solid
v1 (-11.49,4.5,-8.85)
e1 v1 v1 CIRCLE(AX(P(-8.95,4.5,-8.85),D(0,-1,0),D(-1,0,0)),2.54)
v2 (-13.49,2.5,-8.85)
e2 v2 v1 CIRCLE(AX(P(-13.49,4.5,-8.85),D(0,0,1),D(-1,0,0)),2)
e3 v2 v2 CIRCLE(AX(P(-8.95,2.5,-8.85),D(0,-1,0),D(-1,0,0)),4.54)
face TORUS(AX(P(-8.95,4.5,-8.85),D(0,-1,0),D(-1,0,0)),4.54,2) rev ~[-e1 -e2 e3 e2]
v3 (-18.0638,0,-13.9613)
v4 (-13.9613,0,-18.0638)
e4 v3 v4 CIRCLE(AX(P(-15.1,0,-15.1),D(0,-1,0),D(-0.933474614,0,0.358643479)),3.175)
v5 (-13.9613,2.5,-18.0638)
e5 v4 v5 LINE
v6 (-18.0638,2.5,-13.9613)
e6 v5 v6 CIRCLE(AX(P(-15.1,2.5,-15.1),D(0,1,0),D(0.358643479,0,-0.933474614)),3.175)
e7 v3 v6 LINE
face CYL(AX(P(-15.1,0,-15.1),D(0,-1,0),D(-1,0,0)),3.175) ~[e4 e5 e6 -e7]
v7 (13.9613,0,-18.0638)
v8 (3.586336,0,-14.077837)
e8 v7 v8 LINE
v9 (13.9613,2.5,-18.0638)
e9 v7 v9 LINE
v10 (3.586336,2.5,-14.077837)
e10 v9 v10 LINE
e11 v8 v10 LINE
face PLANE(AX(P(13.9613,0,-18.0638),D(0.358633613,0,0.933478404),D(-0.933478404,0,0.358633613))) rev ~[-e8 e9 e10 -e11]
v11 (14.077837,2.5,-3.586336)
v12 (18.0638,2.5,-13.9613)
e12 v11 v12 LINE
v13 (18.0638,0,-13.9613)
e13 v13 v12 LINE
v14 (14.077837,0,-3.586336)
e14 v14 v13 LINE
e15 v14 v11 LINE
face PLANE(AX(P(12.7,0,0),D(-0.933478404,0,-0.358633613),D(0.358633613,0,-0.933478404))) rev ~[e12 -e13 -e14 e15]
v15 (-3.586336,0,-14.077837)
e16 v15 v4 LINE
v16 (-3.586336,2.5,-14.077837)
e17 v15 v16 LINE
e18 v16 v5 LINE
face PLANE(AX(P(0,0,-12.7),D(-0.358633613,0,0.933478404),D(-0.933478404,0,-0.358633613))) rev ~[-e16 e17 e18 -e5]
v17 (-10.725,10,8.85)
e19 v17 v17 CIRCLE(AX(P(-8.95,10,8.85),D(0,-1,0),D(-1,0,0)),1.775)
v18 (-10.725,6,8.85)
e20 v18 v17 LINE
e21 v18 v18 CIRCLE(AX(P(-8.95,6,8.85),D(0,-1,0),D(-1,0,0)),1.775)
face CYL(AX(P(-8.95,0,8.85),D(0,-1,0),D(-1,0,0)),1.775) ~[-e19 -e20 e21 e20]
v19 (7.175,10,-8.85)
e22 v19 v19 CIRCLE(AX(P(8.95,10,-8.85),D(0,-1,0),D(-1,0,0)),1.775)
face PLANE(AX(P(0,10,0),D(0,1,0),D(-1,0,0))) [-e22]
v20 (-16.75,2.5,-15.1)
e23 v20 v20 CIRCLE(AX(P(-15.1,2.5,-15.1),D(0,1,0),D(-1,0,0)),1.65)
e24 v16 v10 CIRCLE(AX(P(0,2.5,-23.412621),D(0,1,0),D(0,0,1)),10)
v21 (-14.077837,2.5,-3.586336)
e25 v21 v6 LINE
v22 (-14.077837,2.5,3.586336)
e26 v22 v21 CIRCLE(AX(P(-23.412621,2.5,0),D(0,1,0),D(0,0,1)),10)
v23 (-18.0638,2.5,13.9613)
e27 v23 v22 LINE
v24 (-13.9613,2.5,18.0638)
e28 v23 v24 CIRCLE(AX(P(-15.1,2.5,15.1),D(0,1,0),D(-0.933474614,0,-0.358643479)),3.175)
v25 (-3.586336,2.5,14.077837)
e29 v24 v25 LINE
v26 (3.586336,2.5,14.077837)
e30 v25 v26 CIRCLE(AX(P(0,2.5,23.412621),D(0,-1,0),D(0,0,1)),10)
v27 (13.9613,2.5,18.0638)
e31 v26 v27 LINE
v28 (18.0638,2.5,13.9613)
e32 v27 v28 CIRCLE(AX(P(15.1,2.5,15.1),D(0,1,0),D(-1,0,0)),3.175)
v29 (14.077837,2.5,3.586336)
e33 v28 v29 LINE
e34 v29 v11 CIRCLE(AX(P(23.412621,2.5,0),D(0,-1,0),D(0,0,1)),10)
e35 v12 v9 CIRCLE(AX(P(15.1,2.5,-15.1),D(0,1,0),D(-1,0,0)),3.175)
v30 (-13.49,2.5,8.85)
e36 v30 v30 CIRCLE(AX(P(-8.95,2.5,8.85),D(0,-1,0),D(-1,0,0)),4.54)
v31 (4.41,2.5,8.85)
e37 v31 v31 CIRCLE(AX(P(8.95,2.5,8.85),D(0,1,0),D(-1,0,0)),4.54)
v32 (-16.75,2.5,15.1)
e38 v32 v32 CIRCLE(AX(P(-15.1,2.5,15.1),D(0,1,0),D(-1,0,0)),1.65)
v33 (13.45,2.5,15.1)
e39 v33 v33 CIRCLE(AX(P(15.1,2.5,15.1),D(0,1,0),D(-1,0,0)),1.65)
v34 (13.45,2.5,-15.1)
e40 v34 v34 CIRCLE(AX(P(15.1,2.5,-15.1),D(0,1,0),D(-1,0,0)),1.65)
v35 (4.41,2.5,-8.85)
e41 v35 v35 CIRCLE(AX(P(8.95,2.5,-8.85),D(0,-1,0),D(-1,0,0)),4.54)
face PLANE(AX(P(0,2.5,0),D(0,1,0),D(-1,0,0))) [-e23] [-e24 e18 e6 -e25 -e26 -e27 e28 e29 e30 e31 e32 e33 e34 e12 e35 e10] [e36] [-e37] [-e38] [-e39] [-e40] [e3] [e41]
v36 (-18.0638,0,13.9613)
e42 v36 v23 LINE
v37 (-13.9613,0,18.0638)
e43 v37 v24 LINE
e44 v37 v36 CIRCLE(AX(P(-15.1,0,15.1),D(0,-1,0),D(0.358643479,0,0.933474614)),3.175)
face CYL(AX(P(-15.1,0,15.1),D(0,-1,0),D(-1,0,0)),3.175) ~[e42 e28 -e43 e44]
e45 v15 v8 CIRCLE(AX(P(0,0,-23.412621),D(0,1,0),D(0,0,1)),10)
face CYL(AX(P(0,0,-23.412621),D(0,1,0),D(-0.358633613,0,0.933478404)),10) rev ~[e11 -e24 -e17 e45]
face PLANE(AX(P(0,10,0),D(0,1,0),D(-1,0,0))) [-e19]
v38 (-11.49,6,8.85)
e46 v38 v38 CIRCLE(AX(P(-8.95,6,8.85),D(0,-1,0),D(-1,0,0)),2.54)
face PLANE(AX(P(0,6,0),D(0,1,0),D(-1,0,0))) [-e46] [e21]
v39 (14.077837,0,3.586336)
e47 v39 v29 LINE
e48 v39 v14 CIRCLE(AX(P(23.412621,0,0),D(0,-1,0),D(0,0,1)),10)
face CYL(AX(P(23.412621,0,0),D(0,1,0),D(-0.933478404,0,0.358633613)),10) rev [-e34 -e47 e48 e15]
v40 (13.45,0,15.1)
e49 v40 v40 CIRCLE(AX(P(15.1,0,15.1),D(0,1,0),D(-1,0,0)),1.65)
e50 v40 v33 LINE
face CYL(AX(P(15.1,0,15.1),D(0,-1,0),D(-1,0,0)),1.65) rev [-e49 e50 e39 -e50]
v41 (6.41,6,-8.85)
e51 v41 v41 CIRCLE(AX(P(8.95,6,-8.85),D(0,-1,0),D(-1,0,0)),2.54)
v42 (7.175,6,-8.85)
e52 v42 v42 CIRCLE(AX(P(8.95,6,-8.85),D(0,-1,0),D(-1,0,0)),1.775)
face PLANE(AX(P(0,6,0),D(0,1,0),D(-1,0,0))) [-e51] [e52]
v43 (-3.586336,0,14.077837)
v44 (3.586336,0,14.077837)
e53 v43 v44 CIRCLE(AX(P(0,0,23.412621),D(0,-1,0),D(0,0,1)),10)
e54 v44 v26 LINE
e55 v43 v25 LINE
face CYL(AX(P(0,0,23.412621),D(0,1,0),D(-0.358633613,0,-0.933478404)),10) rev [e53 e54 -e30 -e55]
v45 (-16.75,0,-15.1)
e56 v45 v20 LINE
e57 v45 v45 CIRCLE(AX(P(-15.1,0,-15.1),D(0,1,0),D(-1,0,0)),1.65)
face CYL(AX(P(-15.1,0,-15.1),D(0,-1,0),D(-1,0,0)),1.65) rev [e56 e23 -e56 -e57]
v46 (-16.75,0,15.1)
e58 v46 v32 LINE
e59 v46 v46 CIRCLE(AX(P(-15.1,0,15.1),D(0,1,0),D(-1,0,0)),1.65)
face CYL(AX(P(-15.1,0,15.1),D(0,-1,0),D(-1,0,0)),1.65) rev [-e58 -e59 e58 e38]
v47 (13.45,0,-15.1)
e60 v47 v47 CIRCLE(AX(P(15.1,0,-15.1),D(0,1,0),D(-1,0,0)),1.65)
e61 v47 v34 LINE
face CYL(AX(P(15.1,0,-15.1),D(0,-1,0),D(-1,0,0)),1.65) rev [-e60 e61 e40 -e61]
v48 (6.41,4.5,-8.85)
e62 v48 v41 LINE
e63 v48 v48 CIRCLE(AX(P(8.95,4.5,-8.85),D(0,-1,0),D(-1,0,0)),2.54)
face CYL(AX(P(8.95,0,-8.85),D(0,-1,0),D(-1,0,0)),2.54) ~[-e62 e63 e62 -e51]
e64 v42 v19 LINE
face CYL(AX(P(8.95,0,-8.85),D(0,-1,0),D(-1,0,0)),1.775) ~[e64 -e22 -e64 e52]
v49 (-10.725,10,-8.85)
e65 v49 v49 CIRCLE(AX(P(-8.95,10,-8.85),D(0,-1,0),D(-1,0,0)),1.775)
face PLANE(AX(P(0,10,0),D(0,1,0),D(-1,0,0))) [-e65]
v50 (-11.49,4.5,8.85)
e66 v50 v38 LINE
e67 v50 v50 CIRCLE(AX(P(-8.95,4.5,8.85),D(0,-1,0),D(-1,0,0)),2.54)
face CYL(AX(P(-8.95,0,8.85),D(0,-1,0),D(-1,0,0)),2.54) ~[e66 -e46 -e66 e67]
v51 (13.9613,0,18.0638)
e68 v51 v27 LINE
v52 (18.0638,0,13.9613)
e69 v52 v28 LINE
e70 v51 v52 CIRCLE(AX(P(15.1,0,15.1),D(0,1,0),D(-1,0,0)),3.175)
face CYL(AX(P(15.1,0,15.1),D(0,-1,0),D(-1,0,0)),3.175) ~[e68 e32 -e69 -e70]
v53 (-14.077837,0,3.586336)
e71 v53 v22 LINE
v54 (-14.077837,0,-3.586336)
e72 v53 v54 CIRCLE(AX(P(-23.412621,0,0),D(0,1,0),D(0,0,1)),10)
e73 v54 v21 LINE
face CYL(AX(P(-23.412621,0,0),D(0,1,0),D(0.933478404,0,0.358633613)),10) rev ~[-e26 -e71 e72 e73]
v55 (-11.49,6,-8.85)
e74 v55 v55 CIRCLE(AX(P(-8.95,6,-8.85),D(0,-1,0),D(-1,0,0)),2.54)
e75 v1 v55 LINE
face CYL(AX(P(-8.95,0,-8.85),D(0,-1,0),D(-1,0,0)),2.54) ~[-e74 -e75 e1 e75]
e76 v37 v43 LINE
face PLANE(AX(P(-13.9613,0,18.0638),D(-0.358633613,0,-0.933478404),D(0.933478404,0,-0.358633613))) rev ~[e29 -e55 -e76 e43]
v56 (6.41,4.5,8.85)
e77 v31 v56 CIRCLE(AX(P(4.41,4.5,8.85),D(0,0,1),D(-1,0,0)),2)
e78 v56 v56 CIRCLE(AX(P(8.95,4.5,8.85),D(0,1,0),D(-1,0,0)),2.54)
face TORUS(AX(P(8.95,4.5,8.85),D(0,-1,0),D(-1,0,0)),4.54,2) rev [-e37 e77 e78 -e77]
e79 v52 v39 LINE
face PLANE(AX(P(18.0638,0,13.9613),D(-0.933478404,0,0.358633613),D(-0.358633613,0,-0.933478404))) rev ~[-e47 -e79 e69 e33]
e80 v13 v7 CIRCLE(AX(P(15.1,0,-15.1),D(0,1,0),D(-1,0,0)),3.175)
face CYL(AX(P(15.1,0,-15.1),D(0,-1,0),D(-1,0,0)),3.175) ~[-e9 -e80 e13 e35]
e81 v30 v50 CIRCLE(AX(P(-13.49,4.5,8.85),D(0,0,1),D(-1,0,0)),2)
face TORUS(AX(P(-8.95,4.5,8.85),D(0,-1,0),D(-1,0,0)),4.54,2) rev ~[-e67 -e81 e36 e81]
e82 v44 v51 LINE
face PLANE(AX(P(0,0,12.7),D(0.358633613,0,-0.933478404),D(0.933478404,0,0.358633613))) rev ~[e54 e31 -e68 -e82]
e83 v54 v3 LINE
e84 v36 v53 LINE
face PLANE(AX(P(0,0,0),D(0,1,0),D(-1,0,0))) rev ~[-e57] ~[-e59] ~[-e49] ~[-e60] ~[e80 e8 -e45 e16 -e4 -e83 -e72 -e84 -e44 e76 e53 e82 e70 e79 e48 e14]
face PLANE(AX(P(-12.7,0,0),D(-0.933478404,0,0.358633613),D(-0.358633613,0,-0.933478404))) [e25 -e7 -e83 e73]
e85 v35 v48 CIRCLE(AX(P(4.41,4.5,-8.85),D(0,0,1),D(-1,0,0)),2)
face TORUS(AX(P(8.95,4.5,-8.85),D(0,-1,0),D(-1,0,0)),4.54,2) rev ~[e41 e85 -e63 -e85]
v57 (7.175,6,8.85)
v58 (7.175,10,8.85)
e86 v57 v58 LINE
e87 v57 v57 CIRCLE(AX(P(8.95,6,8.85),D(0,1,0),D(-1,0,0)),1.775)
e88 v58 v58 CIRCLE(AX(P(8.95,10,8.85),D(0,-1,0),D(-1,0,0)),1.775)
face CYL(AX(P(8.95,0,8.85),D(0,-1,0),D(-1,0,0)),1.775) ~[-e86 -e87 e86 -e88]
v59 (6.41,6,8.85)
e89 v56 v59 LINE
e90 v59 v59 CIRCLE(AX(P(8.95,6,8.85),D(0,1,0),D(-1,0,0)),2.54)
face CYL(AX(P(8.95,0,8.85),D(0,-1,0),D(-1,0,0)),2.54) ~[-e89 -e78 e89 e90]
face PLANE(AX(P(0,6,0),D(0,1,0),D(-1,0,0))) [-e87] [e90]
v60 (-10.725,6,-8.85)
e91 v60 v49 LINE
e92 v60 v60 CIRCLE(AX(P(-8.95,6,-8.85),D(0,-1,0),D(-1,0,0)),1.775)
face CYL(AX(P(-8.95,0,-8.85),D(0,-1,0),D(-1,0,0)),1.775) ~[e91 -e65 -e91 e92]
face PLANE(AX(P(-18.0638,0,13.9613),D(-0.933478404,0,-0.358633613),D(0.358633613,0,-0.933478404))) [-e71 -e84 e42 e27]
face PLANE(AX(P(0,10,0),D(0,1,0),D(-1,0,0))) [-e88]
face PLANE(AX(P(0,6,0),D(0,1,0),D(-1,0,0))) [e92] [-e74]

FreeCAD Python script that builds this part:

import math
import FreeCAD as App
import Part
import Sketcher

V = App.Vector
Q = App.Units.Quantity


def edges_at(feature, points):
    """Names of the edges that pass closest to the given points."""
    edges = feature.Shape.Edges
    near = lambda p: min(range(len(edges)), key=lambda i: edges[i].distToShape(Part.Vertex(*p))[0])
    return sorted({f"Edge{near(p) + 1}" for p in points})

doc = App.newDocument("Part")
body = doc.addObject("PartDesign::Body", "Body")
body.AllowCompound = True

# Sketch on XZ plane
sketch1 = body.newObject("Sketcher::SketchObject", "Sketch")
sketch1.AttachmentSupport = (doc.getObject("XZ_Plane"), [""])
sketch1.MapMode = "FlatFace"
sketch1.addGeometry([
    Part.Circle(V(8.9, 8.8, 0), V(0, 0, 1), 1.8),
    Part.Circle(V(8.9, -8.8, 0), V(0, 0, 1), 1.8),
    Part.Circle(V(-8.9, 8.8, 0), V(0, 0, 1), 1.8),
    Part.Circle(V(-8.9, -8.8, 0), V(0, 0, 1), 1.8),
], False)
sketch1.addConstraint([
    Sketcher.Constraint("Equal", 0, 1),
    Sketcher.Constraint("Equal", 1, 2),
    Sketcher.Constraint("Equal", 2, 3),
    Sketcher.Constraint("Symmetric", 1, 3, 2, 3, -1, 1),
    Sketcher.Constraint("Symmetric", 0, 3, 3, 3, -1, 1),
    Sketcher.Constraint("Symmetric", 0, 3, 2, 3, -2),
    Sketcher.Constraint("Diameter", 0, Q("3.55 mm")),
    Sketcher.Constraint("DistanceY", 1, 3, 0, 3, Q("17.7 mm")),
    Sketcher.Constraint("DistanceX", 2, 3, 0, 3, Q("17.9 mm")),
])
pad1 = body.newObject("PartDesign::Pad", "Pad")
pad1.Profile = sketch1
pad1.Length = 10
pad1.Reversed = True

# Sketch on XZ plane
sketch2 = body.newObject("Sketcher::SketchObject", "Sketch001")
sketch2.AttachmentSupport = (doc.getObject("XZ_Plane"), [""])
sketch2.MapMode = "FlatFace"
sketch2.addGeometry([
    Part.Circle(V(8.9, 8.8, 0), V(0, 0, 1), 2.5),  # 0
    Part.Circle(V(8.9, 8.8, 0), V(0, 0, 1), 1.8),  # 1
    Part.Circle(V(8.9, -8.8, 0), V(0, 0, 1), 2.5),  # 2
    Part.Circle(V(8.9, -8.8, 0), V(0, 0, 1), 1.8),  # 3
    Part.Circle(V(-8.9, 8.8, 0), V(0, 0, 1), 2.5),  # 4
    Part.Circle(V(-8.9, 8.8, 0), V(0, 0, 1), 1.8),  # 5
    Part.Circle(V(-8.9, -8.8, 0), V(0, 0, 1), 2.5),  # 6
    Part.Circle(V(-8.9, -8.8, 0), V(0, 0, 1), 1.8),  # 7
], False)
sketch2.addConstraint([
    Sketcher.Constraint("Coincident", 1, 3, 0, 3),
    Sketcher.Constraint("Coincident", 3, 3, 2, 3),
    Sketcher.Constraint("Coincident", 5, 3, 4, 3),
    Sketcher.Constraint("Coincident", 7, 3, 6, 3),
    Sketcher.Constraint("Equal", 0, 2),
    Sketcher.Constraint("Equal", 1, 3),
    Sketcher.Constraint("Equal", 2, 4),
    Sketcher.Constraint("Equal", 3, 5),
    Sketcher.Constraint("Equal", 4, 6),
    Sketcher.Constraint("Equal", 5, 7),
    Sketcher.Constraint("Symmetric", 2, 3, 4, 3, -1, 1),
    Sketcher.Constraint("Symmetric", 0, 3, 6, 3, -1, 1),
    Sketcher.Constraint("Symmetric", 0, 3, 4, 3, -2),
    Sketcher.Constraint("Diameter", 0, Q("5.08 mm")),
    Sketcher.Constraint("Diameter", 1, Q("3.55 mm")),
    Sketcher.Constraint("DistanceY", 2, 3, 0, 3, Q("17.7 mm")),
    Sketcher.Constraint("DistanceX", 4, 3, 0, 3, Q("17.9 mm")),
])
pad2 = body.newObject("PartDesign::Pad", "Pad001")
pad2.Profile = sketch2
pad2.Length = 6
pad2.Reversed = True

# Sketch on XZ plane
sketch3 = body.newObject("Sketcher::SketchObject", "Sketch002")
sketch3.AttachmentSupport = (doc.getObject("XZ_Plane"), [""])
sketch3.MapMode = "FlatFace"
sketch3.addGeometry([
    Part.LineSegment(V(-12.7, 0, 0), V(-18.1, 14, 0)),  # 0
    Part.ArcOfCircle(Part.Circle(V(-15.1, 15.1, 0), V(0, 0, 1), 3.2), math.radians(69), math.radians(201)),  # 1
    Part.LineSegment(V(-14, 18.1, 0), V(0, 12.7, 0)),  # 2
    Part.LineSegment(V(0, 12.7, 0), V(14, 18.1, 0)),  # 3
    Part.ArcOfCircle(Part.Circle(V(15.1, 15.1, 0), V(0, 0, 1), 3.2), math.radians(-21), math.radians(111)),  # 4
    Part.LineSegment(V(18.1, 14, 0), V(12.7, 0, 0)),  # 5
    Part.LineSegment(V(12.7, 0, 0), V(18.1, -14, 0)),  # 6
    Part.ArcOfCircle(Part.Circle(V(15.1, -15.1, 0), V(0, 0, 1), 3.2), math.radians(-111), math.radians(21)),  # 7
    Part.LineSegment(V(14, -18.1, 0), V(0, -12.7, 0)),  # 8
    Part.LineSegment(V(0, -12.7, 0), V(-14, -18.1, 0)),  # 9
    Part.ArcOfCircle(Part.Circle(V(-15.1, -15.1, 0), V(0, 0, 1), 3.2), math.radians(159), math.radians(291)),  # 10
    Part.LineSegment(V(-18.1, -14, 0), V(-12.7, 0, 0)),  # 11
    Part.LineSegment(V(8.9, 8.8, 0), V(8.9, 6.3, 0)),  # 12
    Part.ArcOfCircle(Part.Circle(V(8.9, 8.8, 0), V(0, 0, 1), 2.5), math.radians(-90), math.radians(180)),  # 13
    Part.LineSegment(V(6.4, 8.8, 0), V(8.9, 8.8, 0)),  # 14
    Part.ArcOfCircle(Part.Circle(V(8.9, -8.8, 0), V(0, 0, 1), 2.5), math.radians(180), math.radians(450)),  # 15
    Part.LineSegment(V(8.9, -6.3, 0), V(8.9, -8.8, 0)),  # 16
    Part.LineSegment(V(8.9, -8.8, 0), V(6.4, -8.8, 0)),  # 17
    Part.LineSegment(V(-8.9, 6.3, 0), V(-8.9, 8.8, 0)),  # 18
    Part.LineSegment(V(-8.9, 8.8, 0), V(-6.4, 8.8, 0)),  # 19
    Part.ArcOfCircle(Part.Circle(V(-8.9, 8.8, 0), V(0, 0, 1), 2.5), math.radians(0), math.radians(270)),  # 20
    Part.LineSegment(V(-6.4, -8.8, 0), V(-8.9, -8.8, 0)),  # 21
    Part.LineSegment(V(-8.9, -8.8, 0), V(-8.9, -6.3, 0)),  # 22
    Part.ArcOfCircle(Part.Circle(V(-8.9, -8.8, 0), V(0, 0, 1), 2.5), math.radians(90), math.radians(360)),  # 23
    Part.Circle(V(-15.1, 15.1, 0), V(0, 0, 1), 1.6),  # 24
    Part.Circle(V(-15.1, -15.1, 0), V(0, 0, 1), 1.6),  # 25
    Part.Circle(V(15.1, -15.1, 0), V(0, 0, 1), 1.6),  # 26
    Part.Circle(V(15.1, 15.1, 0), V(0, 0, 1), 1.6),  # 27
], False)
sketch3.addConstraint([
    Sketcher.Constraint("Tangent", 0, 2, 1, 2),
    Sketcher.Constraint("Tangent", 1, 1, 2, 1),
    Sketcher.Constraint("Coincident", 2, 2, 3, 1),
    Sketcher.Constraint("Tangent", 3, 2, 4, 2),
    Sketcher.Constraint("Tangent", 4, 1, 5, 1),
    Sketcher.Constraint("Coincident", 5, 2, 6, 1),
    Sketcher.Constraint("Tangent", 6, 2, 7, 2),
    Sketcher.Constraint("Tangent", 7, 1, 8, 1),
    Sketcher.Constraint("Coincident", 8, 2, 9, 1),
    Sketcher.Constraint("Tangent", 9, 2, 10, 2),
    Sketcher.Constraint("Tangent", 10, 1, 11, 1),
    Sketcher.Constraint("Coincident", 11, 2, 0, 1),
    Sketcher.Constraint("Coincident", 12, 2, 13, 1),
    Sketcher.Constraint("Coincident", 13, 2, 14, 1),
    Sketcher.Constraint("Coincident", 14, 2, 12, 1),
    Sketcher.Constraint("Coincident", 15, 2, 16, 1),
    Sketcher.Constraint("Coincident", 16, 2, 17, 1),
    Sketcher.Constraint("Coincident", 17, 2, 15, 1),
    Sketcher.Constraint("Coincident", 18, 2, 19, 1),
    Sketcher.Constraint("Coincident", 19, 2, 20, 1),
    Sketcher.Constraint("Coincident", 20, 2, 18, 1),
    Sketcher.Constraint("Coincident", 21, 2, 22, 1),
    Sketcher.Constraint("Coincident", 22, 2, 23, 1),
    Sketcher.Constraint("Coincident", 23, 2, 21, 1),
    Sketcher.Constraint("Vertical", 12),
    Sketcher.Constraint("Horizontal", 14),
    Sketcher.Constraint("Vertical", 16),
    Sketcher.Constraint("Horizontal", 17),
    Sketcher.Constraint("Vertical", 18),
    Sketcher.Constraint("Horizontal", 19),
    Sketcher.Constraint("Horizontal", 21),
    Sketcher.Constraint("Vertical", 22),
    Sketcher.Constraint("Coincident", 24, 3, 1, 3),
    Sketcher.Constraint("Coincident", 25, 3, 10, 3),
    Sketcher.Constraint("Coincident", 26, 3, 7, 3),
    Sketcher.Constraint("Coincident", 27, 3, 4, 3),
    Sketcher.Constraint("Coincident", 14, 2, 13, 3),
    Sketcher.Constraint("Coincident", 16, 2, 15, 3),
    Sketcher.Constraint("Coincident", 18, 2, 20, 3),
    Sketcher.Constraint("Coincident", 21, 2, 23, 3),
    Sketcher.Constraint("Equal", 1, 4),
    Sketcher.Constraint("Equal", 4, 7),
    Sketcher.Constraint("Equal", 7, 10),
    Sketcher.Constraint("Equal", 13, 15),
    Sketcher.Constraint("Equal", 15, 20),
    Sketcher.Constraint("Equal", 20, 23),
    Sketcher.Constraint("Equal", 24, 25),
    Sketcher.Constraint("Equal", 25, 26),
    Sketcher.Constraint("Equal", 26, 27),
    Sketcher.Constraint("Symmetric", 1, 3, 7, 3, -1, 1),
    Sketcher.Constraint("Symmetric", 4, 3, 10, 3, -1, 1),
    Sketcher.Constraint("Symmetric", 15, 3, 20, 3, -1, 1),
    Sketcher.Constraint("Symmetric", 13, 3, 23, 3, -1, 1),
    Sketcher.Constraint("Symmetric", 2, 2, 8, 2, -1, 1),
    Sketcher.Constraint("Symmetric", 5, 2, 11, 2, -1, 1),
    Sketcher.Constraint("Symmetric", 1, 3, 4, 3, -2),
    Sketcher.Constraint("Symmetric", 13, 3, 20, 3, -2),
    Sketcher.Constraint("PointOnObject", 2, 2, -2),
    Sketcher.Constraint("PointOnObject", 5, 2, -1),
    Sketcher.Constraint("Perpendicular", 0, 3),
    Sketcher.Constraint("Equal", 0, 2),
    Sketcher.Constraint("Diameter", 24, Q("3.3 mm")),
    Sketcher.Constraint("Radius", 13, Q("2.54 mm")),
    Sketcher.Constraint("Radius", 1, Q("3.175 mm")),
    Sketcher.Constraint("DistanceY", -1, 1, 2, 2, Q("12.7 mm")),
    Sketcher.Constraint("DistanceX", 1, 3, 4, 3, Q("30.2 mm")),
    Sketcher.Constraint("DistanceY", 15, 3, 13, 3, Q("17.7 mm")),
    Sketcher.Constraint("DistanceX", 20, 3, 13, 3, Q("17.9 mm")),
])
pad3 = body.newObject("PartDesign::Pad", "Pad002")
pad3.Profile = sketch3
pad3.Length = 2.5
pad3.Reversed = True
doc.recompute()

fillet = body.newObject("PartDesign::Fillet", "Fillet")
fillet.Base = (pad3, edges_at(pad3, [
    (0, 1.25, 12.7),
    (12.7, 1.25, 0),
    (0, 1.25, -12.7),
    (-12.7, 1.25, 0),
]))
fillet.Radius = 10
doc.recompute()

fillet2 = body.newObject("PartDesign::Fillet", "Fillet001")
fillet2.Base = (fillet, edges_at(fillet, [
    (-6.41, 2.5, 8.85),
    (11.49, 2.5, 8.85),
    (11.49, 2.5, -8.85),
    (-6.41, 2.5, -8.85),
]))
fillet2.Radius = 2

doc.recompute()
